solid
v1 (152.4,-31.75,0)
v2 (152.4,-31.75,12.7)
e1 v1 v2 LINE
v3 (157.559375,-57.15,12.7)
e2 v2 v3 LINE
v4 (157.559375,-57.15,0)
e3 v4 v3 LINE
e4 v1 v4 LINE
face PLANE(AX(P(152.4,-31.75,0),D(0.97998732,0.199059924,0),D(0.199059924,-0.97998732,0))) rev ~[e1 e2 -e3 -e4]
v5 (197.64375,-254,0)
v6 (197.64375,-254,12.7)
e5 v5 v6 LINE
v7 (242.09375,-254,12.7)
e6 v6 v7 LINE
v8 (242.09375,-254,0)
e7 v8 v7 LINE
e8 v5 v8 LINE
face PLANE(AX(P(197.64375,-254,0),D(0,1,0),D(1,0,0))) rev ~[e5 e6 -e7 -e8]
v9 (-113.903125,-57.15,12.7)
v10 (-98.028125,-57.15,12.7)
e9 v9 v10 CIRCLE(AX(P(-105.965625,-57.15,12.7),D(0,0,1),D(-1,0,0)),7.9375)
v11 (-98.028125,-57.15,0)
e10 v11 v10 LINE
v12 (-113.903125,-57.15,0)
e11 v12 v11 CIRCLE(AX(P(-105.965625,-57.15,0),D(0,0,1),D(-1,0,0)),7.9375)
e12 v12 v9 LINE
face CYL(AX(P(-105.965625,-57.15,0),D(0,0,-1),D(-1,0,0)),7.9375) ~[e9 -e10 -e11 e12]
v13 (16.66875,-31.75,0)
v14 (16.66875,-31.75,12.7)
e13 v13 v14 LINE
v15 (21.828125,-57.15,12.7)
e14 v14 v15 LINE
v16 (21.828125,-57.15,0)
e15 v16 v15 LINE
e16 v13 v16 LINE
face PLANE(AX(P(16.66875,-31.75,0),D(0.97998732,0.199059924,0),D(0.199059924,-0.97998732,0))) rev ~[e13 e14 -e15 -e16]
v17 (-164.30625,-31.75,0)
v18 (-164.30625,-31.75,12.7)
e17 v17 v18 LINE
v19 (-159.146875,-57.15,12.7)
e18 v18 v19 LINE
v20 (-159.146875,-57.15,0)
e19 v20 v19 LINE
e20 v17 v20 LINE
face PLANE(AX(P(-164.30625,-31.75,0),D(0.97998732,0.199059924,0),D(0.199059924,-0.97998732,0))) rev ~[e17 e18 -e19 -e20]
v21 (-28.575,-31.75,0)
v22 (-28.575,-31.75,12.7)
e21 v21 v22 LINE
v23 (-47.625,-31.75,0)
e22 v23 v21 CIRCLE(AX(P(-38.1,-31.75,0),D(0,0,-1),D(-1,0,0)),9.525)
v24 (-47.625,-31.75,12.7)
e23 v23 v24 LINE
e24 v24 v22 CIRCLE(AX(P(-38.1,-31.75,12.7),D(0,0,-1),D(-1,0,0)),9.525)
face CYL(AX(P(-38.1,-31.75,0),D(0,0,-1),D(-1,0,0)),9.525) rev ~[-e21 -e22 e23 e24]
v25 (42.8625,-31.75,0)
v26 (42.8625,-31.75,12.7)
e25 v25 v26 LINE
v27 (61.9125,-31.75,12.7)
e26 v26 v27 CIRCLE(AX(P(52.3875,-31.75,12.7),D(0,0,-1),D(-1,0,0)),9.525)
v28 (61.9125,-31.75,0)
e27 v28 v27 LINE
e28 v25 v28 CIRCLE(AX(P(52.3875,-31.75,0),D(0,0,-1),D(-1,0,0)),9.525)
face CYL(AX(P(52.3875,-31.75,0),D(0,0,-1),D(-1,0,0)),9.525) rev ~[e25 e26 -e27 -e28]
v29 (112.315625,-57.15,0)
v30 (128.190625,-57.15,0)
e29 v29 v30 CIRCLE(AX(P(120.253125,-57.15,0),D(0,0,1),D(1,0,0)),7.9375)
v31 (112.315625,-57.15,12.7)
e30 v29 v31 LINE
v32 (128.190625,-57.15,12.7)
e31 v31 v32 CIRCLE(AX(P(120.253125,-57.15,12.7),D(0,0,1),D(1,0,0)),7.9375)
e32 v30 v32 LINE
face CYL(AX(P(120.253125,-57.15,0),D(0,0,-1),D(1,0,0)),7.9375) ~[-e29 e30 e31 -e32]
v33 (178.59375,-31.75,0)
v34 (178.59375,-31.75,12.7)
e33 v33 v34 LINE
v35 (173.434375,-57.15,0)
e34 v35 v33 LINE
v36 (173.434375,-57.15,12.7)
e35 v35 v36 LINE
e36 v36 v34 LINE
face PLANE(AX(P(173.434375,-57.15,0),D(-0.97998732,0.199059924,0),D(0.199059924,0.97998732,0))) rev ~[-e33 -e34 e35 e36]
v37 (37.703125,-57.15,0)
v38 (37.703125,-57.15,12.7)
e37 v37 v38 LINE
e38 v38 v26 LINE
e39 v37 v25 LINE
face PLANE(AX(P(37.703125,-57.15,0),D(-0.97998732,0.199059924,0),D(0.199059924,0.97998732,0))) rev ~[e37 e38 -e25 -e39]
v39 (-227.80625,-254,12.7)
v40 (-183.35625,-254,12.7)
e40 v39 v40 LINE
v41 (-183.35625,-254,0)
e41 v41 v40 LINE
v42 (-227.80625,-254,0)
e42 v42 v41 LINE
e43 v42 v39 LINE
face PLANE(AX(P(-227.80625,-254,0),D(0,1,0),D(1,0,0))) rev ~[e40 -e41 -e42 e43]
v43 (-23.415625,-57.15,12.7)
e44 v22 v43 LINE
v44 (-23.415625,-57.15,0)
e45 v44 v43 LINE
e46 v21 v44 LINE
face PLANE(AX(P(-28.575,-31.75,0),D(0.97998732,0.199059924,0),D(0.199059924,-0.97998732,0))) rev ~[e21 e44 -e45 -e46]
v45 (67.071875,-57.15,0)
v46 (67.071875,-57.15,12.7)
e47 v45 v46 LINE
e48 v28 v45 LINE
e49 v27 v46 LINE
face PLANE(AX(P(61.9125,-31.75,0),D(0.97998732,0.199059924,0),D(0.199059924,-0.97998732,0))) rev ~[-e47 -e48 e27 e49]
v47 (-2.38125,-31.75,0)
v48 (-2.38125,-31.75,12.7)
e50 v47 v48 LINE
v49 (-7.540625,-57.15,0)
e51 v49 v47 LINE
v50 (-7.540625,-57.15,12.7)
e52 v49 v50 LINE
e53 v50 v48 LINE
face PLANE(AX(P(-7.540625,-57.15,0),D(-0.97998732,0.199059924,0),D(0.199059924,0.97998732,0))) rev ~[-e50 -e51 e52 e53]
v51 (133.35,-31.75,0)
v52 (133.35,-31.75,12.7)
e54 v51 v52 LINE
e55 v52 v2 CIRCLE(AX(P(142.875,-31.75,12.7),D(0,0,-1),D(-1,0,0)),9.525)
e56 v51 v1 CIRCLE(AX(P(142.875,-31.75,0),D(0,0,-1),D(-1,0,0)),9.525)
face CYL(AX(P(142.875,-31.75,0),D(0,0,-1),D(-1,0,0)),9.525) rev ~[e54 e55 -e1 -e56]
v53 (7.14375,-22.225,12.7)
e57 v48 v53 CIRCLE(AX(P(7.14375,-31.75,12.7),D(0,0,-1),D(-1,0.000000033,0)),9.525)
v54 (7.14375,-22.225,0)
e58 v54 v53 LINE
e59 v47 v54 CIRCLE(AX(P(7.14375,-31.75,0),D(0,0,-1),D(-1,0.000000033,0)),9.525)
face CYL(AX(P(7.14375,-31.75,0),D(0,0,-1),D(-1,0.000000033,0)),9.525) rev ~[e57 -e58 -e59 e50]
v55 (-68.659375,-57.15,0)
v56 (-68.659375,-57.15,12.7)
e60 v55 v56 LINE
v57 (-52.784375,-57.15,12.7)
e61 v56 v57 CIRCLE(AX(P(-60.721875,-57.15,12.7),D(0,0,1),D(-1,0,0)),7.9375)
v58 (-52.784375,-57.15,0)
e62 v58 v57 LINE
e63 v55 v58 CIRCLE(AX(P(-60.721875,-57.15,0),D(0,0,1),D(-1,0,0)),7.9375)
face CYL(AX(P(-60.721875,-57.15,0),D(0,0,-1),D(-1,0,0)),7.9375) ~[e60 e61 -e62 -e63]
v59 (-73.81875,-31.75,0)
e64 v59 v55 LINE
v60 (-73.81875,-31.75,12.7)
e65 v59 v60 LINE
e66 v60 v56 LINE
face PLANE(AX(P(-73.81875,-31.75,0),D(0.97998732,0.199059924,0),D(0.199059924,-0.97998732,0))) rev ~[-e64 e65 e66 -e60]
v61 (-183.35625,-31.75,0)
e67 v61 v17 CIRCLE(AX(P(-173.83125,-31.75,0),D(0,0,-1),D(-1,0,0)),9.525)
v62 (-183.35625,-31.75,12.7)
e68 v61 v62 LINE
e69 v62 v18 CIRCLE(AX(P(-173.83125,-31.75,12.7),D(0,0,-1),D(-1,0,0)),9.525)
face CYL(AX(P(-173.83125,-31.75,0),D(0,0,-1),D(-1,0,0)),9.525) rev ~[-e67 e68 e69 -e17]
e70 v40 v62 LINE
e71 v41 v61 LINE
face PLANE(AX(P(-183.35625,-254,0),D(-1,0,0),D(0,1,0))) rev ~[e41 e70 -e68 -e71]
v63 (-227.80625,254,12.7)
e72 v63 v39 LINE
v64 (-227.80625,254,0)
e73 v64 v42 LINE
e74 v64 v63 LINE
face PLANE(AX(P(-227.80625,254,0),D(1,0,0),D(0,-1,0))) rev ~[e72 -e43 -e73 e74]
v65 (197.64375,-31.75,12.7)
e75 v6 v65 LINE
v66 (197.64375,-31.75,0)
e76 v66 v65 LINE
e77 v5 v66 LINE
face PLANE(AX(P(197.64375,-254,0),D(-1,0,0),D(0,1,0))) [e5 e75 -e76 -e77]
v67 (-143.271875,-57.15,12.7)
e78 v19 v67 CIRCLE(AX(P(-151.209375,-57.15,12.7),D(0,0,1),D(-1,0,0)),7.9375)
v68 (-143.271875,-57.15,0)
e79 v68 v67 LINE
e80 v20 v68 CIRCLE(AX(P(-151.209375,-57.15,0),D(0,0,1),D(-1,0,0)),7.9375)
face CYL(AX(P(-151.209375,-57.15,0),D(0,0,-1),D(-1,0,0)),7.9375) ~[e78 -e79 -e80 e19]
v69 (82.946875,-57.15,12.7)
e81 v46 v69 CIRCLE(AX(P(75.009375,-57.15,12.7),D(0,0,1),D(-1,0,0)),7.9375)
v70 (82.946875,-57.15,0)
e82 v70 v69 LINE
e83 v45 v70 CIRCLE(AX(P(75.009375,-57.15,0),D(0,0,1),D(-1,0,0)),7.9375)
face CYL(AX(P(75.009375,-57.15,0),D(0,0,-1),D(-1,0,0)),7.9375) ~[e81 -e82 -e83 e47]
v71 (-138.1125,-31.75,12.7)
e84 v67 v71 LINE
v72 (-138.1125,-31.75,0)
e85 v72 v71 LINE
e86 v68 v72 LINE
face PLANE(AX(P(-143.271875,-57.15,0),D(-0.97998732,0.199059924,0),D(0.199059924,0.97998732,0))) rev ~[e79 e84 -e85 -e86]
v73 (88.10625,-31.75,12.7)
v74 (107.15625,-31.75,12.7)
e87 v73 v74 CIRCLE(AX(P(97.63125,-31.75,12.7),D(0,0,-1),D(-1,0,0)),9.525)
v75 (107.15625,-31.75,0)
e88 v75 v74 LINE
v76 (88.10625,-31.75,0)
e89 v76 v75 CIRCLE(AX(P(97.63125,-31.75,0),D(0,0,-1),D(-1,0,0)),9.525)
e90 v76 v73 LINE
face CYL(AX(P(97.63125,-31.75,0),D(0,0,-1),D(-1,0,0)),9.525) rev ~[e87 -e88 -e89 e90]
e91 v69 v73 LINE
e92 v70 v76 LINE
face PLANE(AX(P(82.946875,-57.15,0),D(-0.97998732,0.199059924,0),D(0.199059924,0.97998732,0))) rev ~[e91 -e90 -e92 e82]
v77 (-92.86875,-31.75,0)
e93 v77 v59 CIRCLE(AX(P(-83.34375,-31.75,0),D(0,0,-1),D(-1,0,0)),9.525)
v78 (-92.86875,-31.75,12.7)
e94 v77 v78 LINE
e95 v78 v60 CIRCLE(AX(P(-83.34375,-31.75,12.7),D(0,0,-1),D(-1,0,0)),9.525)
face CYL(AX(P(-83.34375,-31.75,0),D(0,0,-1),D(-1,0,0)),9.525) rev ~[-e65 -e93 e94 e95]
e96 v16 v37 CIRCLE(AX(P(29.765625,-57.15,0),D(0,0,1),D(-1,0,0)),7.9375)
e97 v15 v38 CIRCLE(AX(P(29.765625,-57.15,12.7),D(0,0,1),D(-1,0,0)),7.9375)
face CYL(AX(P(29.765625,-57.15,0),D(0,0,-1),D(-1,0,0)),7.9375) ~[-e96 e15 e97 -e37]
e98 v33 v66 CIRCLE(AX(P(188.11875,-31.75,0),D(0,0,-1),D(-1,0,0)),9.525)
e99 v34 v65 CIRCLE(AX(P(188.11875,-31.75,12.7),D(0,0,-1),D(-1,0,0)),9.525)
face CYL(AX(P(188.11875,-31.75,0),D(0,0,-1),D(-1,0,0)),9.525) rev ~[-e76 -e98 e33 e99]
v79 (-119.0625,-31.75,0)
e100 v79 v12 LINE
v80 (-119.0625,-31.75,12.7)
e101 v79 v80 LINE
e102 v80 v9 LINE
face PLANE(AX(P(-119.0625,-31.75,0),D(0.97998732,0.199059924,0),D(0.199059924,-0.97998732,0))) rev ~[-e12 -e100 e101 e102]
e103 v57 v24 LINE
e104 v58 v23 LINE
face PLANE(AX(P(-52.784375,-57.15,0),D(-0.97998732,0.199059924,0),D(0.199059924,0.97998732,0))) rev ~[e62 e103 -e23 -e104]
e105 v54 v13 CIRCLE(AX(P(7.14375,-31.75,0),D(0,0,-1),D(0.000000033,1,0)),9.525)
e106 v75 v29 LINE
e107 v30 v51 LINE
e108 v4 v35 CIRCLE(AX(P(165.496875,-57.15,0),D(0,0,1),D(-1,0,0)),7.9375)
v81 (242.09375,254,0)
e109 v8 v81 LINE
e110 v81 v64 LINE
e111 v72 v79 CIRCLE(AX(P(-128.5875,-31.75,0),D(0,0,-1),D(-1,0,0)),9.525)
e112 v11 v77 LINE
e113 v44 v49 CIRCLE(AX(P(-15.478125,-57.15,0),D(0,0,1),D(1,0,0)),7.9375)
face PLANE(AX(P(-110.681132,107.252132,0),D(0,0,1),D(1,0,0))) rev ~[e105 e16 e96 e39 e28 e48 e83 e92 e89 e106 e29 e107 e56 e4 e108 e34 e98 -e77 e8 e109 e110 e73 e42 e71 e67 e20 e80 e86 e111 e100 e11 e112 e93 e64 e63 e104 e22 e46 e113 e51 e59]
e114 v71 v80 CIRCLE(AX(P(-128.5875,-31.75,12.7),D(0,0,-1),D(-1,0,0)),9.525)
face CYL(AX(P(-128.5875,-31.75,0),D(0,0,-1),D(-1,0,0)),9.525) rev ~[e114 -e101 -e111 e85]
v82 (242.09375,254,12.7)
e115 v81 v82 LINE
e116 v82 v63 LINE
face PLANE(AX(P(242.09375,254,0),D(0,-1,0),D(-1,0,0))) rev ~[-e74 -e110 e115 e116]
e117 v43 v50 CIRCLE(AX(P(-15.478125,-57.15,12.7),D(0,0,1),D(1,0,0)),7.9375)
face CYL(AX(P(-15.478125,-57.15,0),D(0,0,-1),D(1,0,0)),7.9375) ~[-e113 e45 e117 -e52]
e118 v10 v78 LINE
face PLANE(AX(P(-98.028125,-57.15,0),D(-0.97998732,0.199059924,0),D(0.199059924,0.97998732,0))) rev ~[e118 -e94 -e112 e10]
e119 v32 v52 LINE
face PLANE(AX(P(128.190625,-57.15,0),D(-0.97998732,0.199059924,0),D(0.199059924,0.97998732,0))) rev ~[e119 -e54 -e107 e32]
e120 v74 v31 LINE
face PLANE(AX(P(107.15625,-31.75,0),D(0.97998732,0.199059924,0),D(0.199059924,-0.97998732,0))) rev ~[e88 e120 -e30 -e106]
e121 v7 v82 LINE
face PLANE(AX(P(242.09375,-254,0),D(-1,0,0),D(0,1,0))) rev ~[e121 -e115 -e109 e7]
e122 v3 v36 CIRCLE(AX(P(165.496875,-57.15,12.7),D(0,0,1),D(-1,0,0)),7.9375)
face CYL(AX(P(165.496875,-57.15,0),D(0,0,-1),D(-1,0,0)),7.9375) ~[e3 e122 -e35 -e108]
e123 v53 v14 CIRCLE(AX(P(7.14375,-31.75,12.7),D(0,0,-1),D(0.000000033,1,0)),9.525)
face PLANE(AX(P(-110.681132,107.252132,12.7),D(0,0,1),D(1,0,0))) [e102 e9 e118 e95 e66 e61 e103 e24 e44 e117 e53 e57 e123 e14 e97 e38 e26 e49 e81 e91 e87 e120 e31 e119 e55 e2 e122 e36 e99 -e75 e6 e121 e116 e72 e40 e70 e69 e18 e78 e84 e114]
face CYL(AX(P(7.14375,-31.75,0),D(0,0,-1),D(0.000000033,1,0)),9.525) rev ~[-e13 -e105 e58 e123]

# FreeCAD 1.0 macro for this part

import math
import FreeCAD as App
import Part
import Sketcher
Q = App.Units.Quantity

doc = App.newDocument("Part")
body = doc.addObject("PartDesign::Body", "Body")

sketch1 = doc.addObject("Sketcher::SketchObject", "Sketch")
body.addObject(sketch1)
sketch1.AttachmentSupport = (doc.XY_Plane, [""])
sketch1.MapMode = "FlatFace"
sketch1.addGeometry([
    Part.LineSegment(App.Vector(-228, 254, 0), App.Vector(-228, -254, 0)),
    Part.LineSegment(App.Vector(-228, -254, 0), App.Vector(-183, -254, 0)),
    Part.LineSegment(App.Vector(-183, -254, 0), App.Vector(-183, -32, 0)),
    Part.ArcOfCircle(Part.Circle(App.Vector(-174, -32, 0), App.Vector(0, 0, 1), 10), math.radians(0), math.radians(180)),
    Part.LineSegment(App.Vector(-164, -32, 0), App.Vector(-159, -57, 0)),
    Part.ArcOfCircle(Part.Circle(App.Vector(-151, -57, 0), App.Vector(0, 0, 1), 8), math.radians(180), math.radians(360)),
    Part.LineSegment(App.Vector(-143, -57, 0), App.Vector(-138, -32, 0)),
    Part.ArcOfCircle(Part.Circle(App.Vector(-129, -32, 0), App.Vector(0, 0, 1), 10), math.radians(0), math.radians(180)),
    Part.LineSegment(App.Vector(-119, -32, 0), App.Vector(-114, -57, 0)),
    Part.ArcOfCircle(Part.Circle(App.Vector(-106, -57, 0), App.Vector(0, 0, 1), 8), math.radians(180), math.radians(360)),
    Part.LineSegment(App.Vector(-98, -57, 0), App.Vector(-93, -32, 0)),
    Part.ArcOfCircle(Part.Circle(App.Vector(-83, -32, 0), App.Vector(0, 0, 1), 10), math.radians(0), math.radians(180)),
    Part.LineSegment(App.Vector(-74, -32, 0), App.Vector(-69, -57, 0)),
    Part.ArcOfCircle(Part.Circle(App.Vector(-61, -57, 0), App.Vector(0, 0, 1), 8), math.radians(180), math.radians(360)),
    Part.LineSegment(App.Vector(-53, -57, 0), App.Vector(-48, -32, 0)),
    Part.ArcOfCircle(Part.Circle(App.Vector(-38, -32, 0), App.Vector(0, 0, 1), 10), math.radians(0), math.radians(180)),
    Part.LineSegment(App.Vector(-29, -32, 0), App.Vector(-23, -57, 0)),
    Part.ArcOfCircle(Part.Circle(App.Vector(-15, -57, 0), App.Vector(0, 0, 1), 8), math.radians(180), math.radians(360)),
    Part.LineSegment(App.Vector(-8, -57, 0), App.Vector(-2, -32, 0)),
    Part.ArcOfCircle(Part.Circle(App.Vector(7, -32, 0), App.Vector(0, 0, 1), 10), math.radians(90), math.radians(180)),
    Part.ArcOfCircle(Part.Circle(App.Vector(7, -32, 0), App.Vector(0, 0, 1), 10), math.radians(0), math.radians(90)),
    Part.LineSegment(App.Vector(17, -32, 0), App.Vector(22, -57, 0)),
    Part.ArcOfCircle(Part.Circle(App.Vector(30, -57, 0), App.Vector(0, 0, 1), 8), math.radians(180), math.radians(360)),
    Part.LineSegment(App.Vector(38, -57, 0), App.Vector(43, -32, 0)),
    Part.ArcOfCircle(Part.Circle(App.Vector(52, -32, 0), App.Vector(0, 0, 1), 10), math.radians(0), math.radians(180)),
    Part.LineSegment(App.Vector(62, -32, 0), App.Vector(67, -57, 0)),
    Part.ArcOfCircle(Part.Circle(App.Vector(75, -57, 0), App.Vector(0, 0, 1), 8), math.radians(180), math.radians(360)),
    Part.LineSegment(App.Vector(83, -57, 0), App.Vector(88, -32, 0)),
    Part.ArcOfCircle(Part.Circle(App.Vector(98, -32, 0), App.Vector(0, 0, 1), 10), math.radians(0), math.radians(180)),
    Part.LineSegment(App.Vector(107, -32, 0), App.Vector(112, -57, 0)),
    Part.ArcOfCircle(Part.Circle(App.Vector(120, -57, 0), App.Vector(0, 0, 1), 8), math.radians(180), math.radians(360)),
    Part.LineSegment(App.Vector(128, -57, 0), App.Vector(133, -32, 0)),
    Part.ArcOfCircle(Part.Circle(App.Vector(143, -32, 0), App.Vector(0, 0, 1), 10), math.radians(0), math.radians(180)),
    Part.LineSegment(App.Vector(152, -32, 0), App.Vector(158, -57, 0)),
    Part.ArcOfCircle(Part.Circle(App.Vector(165, -57, 0), App.Vector(0, 0, 1), 8), math.radians(180), math.radians(360)),
    Part.LineSegment(App.Vector(173, -57, 0), App.Vector(179, -32, 0)),
    Part.ArcOfCircle(Part.Circle(App.Vector(188, -32, 0), App.Vector(0, 0, 1), 10), math.radians(0), math.radians(180)),
    Part.LineSegment(App.Vector(198, -32, 0), App.Vector(198, -254, 0)),
    Part.LineSegment(App.Vector(198, -254, 0), App.Vector(242, -254, 0)),
    Part.LineSegment(App.Vector(242, -254, 0), App.Vector(242, 254, 0)),
    Part.LineSegment(App.Vector(242, 254, 0), App.Vector(-228, 254, 0)),
], False)
sketch1.addConstraint([
    Sketcher.Constraint("Coincident", 0, 2, 1, 1),
    Sketcher.Constraint("Coincident", 1, 2, 2, 1),
    Sketcher.Constraint("Tangent", 2, 2, 3, 2),
    Sketcher.Constraint("Coincident", 3, 1, 4, 1),
    Sketcher.Constraint("Coincident", 4, 2, 5, 1),
    Sketcher.Constraint("Coincident", 5, 2, 6, 1),
    Sketcher.Constraint("Coincident", 6, 2, 7, 2),
    Sketcher.Constraint("Coincident", 7, 1, 8, 1),
    Sketcher.Constraint("Coincident", 8, 2, 9, 1),
    Sketcher.Constraint("Coincident", 9, 2, 10, 1),
    Sketcher.Constraint("Coincident", 10, 2, 11, 2),
    Sketcher.Constraint("Coincident", 11, 1, 12, 1),
    Sketcher.Constraint("Coincident", 12, 2, 13, 1),
    Sketcher.Constraint("Coincident", 13, 2, 14, 1),
    Sketcher.Constraint("Coincident", 14, 2, 15, 2),
    Sketcher.Constraint("Coincident", 15, 1, 16, 1),
    Sketcher.Constraint("Coincident", 16, 2, 17, 1),
    Sketcher.Constraint("Coincident", 17, 2, 18, 1),
    Sketcher.Constraint("Coincident", 18, 2, 19, 2),
    Sketcher.Constraint("Tangent", 19, 1, 20, 2),
    Sketcher.Constraint("Coincident", 20, 1, 21, 1),
    Sketcher.Constraint("Coincident", 21, 2, 22, 1),
    Sketcher.Constraint("Coincident", 22, 2, 23, 1),
    Sketcher.Constraint("Coincident", 23, 2, 24, 2),
    Sketcher.Constraint("Coincident", 24, 1, 25, 1),
    Sketcher.Constraint("Coincident", 25, 2, 26, 1),
    Sketcher.Constraint("Coincident", 26, 2, 27, 1),
    Sketcher.Constraint("Coincident", 27, 2, 28, 2),
    Sketcher.Constraint("Coincident", 28, 1, 29, 1),
    Sketcher.Constraint("Coincident", 29, 2, 30, 1),
    Sketcher.Constraint("Coincident", 30, 2, 31, 1),
    Sketcher.Constraint("Coincident", 31, 2, 32, 2),
    Sketcher.Constraint("Coincident", 32, 1, 33, 1),
    Sketcher.Constraint("Coincident", 33, 2, 34, 1),
    Sketcher.Constraint("Coincident", 34, 2, 35, 1),
    Sketcher.Constraint("Coincident", 35, 2, 36, 2),
    Sketcher.Constraint("Tangent", 36, 1, 37, 1),
    Sketcher.Constraint("Coincident", 37, 2, 38, 1),
    Sketcher.Constraint("Coincident", 38, 2, 39, 1),
    Sketcher.Constraint("Coincident", 39, 2, 40, 1),
    Sketcher.Constraint("Coincident", 40, 2, 0, 1),
    Sketcher.Constraint("Vertical", 0),
    Sketcher.Constraint("Horizontal", 1),
    Sketcher.Constraint("Vertical", 2),
    Sketcher.Constraint("Vertical", 37),
    Sketcher.Constraint("Horizontal", 38),
    Sketcher.Constraint("Vertical", 39),
    Sketcher.Constraint("Horizontal", 40),
    Sketcher.Constraint("Equal", 3, 7),
    Sketcher.Constraint("Equal", 5, 9),
    Sketcher.Constraint("Equal", 7, 11),
    Sketcher.Constraint("Equal", 9, 13),
    Sketcher.Constraint("Equal", 11, 15),
    Sketcher.Constraint("Equal", 13, 17),
    Sketcher.Constraint("Equal", 15, 19),
    Sketcher.Constraint("Equal", 19, 20),
    Sketcher.Constraint("Equal", 17, 22),
    Sketcher.Constraint("Equal", 20, 24),
    Sketcher.Constraint("Equal", 22, 26),
    Sketcher.Constraint("Equal", 24, 28),
    Sketcher.Constraint("Equal", 26, 30),
    Sketcher.Constraint("Equal", 28, 32),
    Sketcher.Constraint("Equal", 30, 34),
    Sketcher.Constraint("Equal", 32, 36),
    Sketcher.Constraint("Parallel", 4, 8),
    Sketcher.Constraint("Parallel", 6, 10),
    Sketcher.Constraint("Parallel", 8, 12),
    Sketcher.Constraint("Parallel", 10, 14),
    Sketcher.Constraint("Parallel", 12, 16),
    Sketcher.Constraint("Parallel", 14, 18),
    Sketcher.Constraint("Parallel", 16, 21),
    Sketcher.Constraint("Parallel", 18, 23),
    Sketcher.Constraint("Parallel", 21, 25),
    Sketcher.Constraint("Parallel", 23, 27),
    Sketcher.Constraint("Parallel", 25, 29),
    Sketcher.Constraint("Parallel", 27, 31),
    Sketcher.Constraint("Parallel", 29, 33),
    Sketcher.Constraint("Parallel", 31, 35),
    Sketcher.Constraint("Horizontal", 3, 3, 7, 3),
    Sketcher.Constraint("Horizontal", 5, 3, 9, 3),
    Sketcher.Constraint("Horizontal", 7, 3, 11, 3),
    Sketcher.Constraint("Horizontal", 9, 3, 13, 3),
    Sketcher.Constraint("Horizontal", 11, 3, 15, 3),
    Sketcher.Constraint("Horizontal", 13, 3, 17, 3),
    Sketcher.Constraint("Horizontal", 15, 3, 19, 3),
    Sketcher.Constraint("Horizontal", 17, 3, 22, 3),
    Sketcher.Constraint("Horizontal", 20, 3, 24, 3),
    Sketcher.Constraint("Horizontal", 22, 3, 26, 3),
    Sketcher.Constraint("Horizontal", 24, 3, 28, 3),
    Sketcher.Constraint("Horizontal", 26, 3, 30, 3),
    Sketcher.Constraint("Horizontal", 28, 3, 32, 3),
    Sketcher.Constraint("Horizontal", 30, 3, 34, 3),
    Sketcher.Constraint("Horizontal", 32, 3, 36, 3),
    Sketcher.Constraint("Horizontal", 2, 2, 3, 1),
    Sketcher.Constraint("Horizontal", 34, 3, 4, 2),
    Sketcher.Constraint("Horizontal", 4, 2, 5, 2),
    Sketcher.Constraint("Horizontal", 3, 1, 6, 2),
    Sketcher.Constraint("Horizontal", 6, 2, 7, 1),
    Sketcher.Constraint("Horizontal", 5, 2, 8, 2),
    Sketcher.Constraint("Horizontal", 8, 2, 9, 2),
    Sketcher.Constraint("Horizontal", 7, 1, 10, 2),
    Sketcher.Constraint("Horizontal", 10, 2, 11, 1),
    Sketcher.Constraint("Horizontal", 9, 2, 12, 2),
    Sketcher.Constraint("Horizontal", 12, 2, 13, 2),
    Sketcher.Constraint("Horizontal", 11, 1, 14, 2),
    Sketcher.Constraint("Horizontal", 14, 2, 15, 1),
    Sketcher.Constraint("Horizontal", 13, 2, 16, 2),
    Sketcher.Constraint("Horizontal", 16, 2, 17, 2),
    Sketcher.Constraint("Horizontal", 15, 1, 18, 2),
    Sketcher.Constraint("Horizontal", 18, 2, 20, 1),
    Sketcher.Constraint("Horizontal", 17, 2, 21, 2),
    Sketcher.Constraint("Horizontal", 21, 2, 22, 2),
    Sketcher.Constraint("Horizontal", 20, 1, 23, 2),
    Sketcher.Constraint("Horizontal", 23, 2, 24, 1),
    Sketcher.Constraint("Horizontal", 22, 2, 25, 2),
    Sketcher.Constraint("Horizontal", 25, 2, 26, 2),
    Sketcher.Constraint("Horizontal", 24, 1, 27, 2),
    Sketcher.Constraint("Horizontal", 27, 2, 28, 1),
    Sketcher.Constraint("Horizontal", 26, 2, 29, 2),
    Sketcher.Constraint("Horizontal", 29, 2, 30, 2),
    Sketcher.Constraint("Horizontal", 28, 1, 31, 2),
    Sketcher.Constraint("Horizontal", 31, 2, 32, 1),
    Sketcher.Constraint("Horizontal", 30, 2, 33, 2),
    Sketcher.Constraint("Horizontal", 33, 2, 34, 2),
    Sketcher.Constraint("Horizontal", 32, 1, 35, 2),
    Sketcher.Constraint("Horizontal", 1, 2, 37, 2),
    Sketcher.Constraint("Vertical", 20, 3, 19, 1),
    Sketcher.Constraint("Equal", 1, 38),
    Sketcher.Constraint("Equal", 4, 6),
    Sketcher.Constraint("DistanceY", 0, 2, 0, 1, Q("20 in")),
    Sketcher.Constraint("DistanceX", 40, 2, 40, 1, Q("18.5 in")),
    Sketcher.Constraint("DistanceY", 0, 2, -1, 1, Q("10 in")),
    Sketcher.Constraint("DistanceX", -1, 1, 32, 1, Q("6 in")),
    Sketcher.Constraint("Radius", 3, Q("0.375 in")),
    Sketcher.Constraint("Radius", 5, Q("0.3125 in")),
    Sketcher.Constraint("DistanceY", 5, 3, 3, 3, Q("1 in")),
    Sketcher.Constraint("DistanceX", 1, 1, 1, 2, Q("1.75 in")),
    Sketcher.Constraint("DistanceY", 2, 1, 2, 2, Q("8.75 in")),
])
pad1 = doc.addObject("PartDesign::Pad", "Pad")
body.addObject(pad1)
pad1.Profile = sketch1
pad1.Length = Q("0.5 in")

doc.recompute()
